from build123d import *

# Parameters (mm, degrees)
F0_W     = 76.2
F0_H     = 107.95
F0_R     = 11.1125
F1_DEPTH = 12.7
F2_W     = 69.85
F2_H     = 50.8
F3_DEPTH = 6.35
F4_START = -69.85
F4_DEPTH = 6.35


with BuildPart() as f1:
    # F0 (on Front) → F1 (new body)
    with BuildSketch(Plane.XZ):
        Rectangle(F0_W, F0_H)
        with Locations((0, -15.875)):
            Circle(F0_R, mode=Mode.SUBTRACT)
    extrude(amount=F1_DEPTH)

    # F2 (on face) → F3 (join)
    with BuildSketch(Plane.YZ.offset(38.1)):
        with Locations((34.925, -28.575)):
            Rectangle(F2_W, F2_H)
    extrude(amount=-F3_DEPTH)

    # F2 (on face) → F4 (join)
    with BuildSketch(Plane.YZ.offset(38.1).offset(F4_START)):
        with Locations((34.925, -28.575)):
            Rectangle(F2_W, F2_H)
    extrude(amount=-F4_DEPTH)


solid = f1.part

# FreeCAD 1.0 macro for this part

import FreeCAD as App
import Part
import Sketcher

V = App.Vector
Q = App.Units.Quantity

doc = App.newDocument("Part")
body = doc.addObject("PartDesign::Body", "Body")

# Sketch on XZ plane
sketch1 = body.newObject("Sketcher::SketchObject", "Sketch")
sketch1.AttachmentSupport = (doc.getObject("XZ_Plane"), [""])
sketch1.MapMode = "FlatFace"
sketch1.addGeometry(Part.LineSegment(V(-38.1, 53.975, 0), V(-38.1, -53.975, 0)), False)
sketch1.addGeometry(Part.LineSegment(V(-38.1, -53.975, 0), V(38.1, -53.975, 0)), False)
sketch1.addGeometry(Part.LineSegment(V(38.1, -53.975, 0), V(38.1, 53.975, 0)), False)
sketch1.addGeometry(Part.LineSegment(V(38.1, 53.975, 0), V(-38.1, 53.975, 0)), False)
sketch1.addGeometry(Part.Circle(V(0, -15.875, 0), V(0, 0, 1), 11.1125), False)
sketch1.addConstraint(Sketcher.Constraint("Coincident", 0, 2, 1, 1))
sketch1.addConstraint(Sketcher.Constraint("Coincident", 1, 2, 2, 1))
sketch1.addConstraint(Sketcher.Constraint("Coincident", 2, 2, 3, 1))
sketch1.addConstraint(Sketcher.Constraint("Coincident", 3, 2, 0, 1))
sketch1.addConstraint(Sketcher.Constraint("Vertical", 0))
sketch1.addConstraint(Sketcher.Constraint("Horizontal", 1))
sketch1.addConstraint(Sketcher.Constraint("Vertical", 2))
sketch1.addConstraint(Sketcher.Constraint("Horizontal", 3))
sketch1.addConstraint(Sketcher.Constraint("Symmetric", 0, 2, 2, 2, -1, 1))
sketch1.addConstraint(Sketcher.Constraint("PointOnObject", 4, 3, -2))
sketch1.addConstraint(Sketcher.Constraint("DistanceX", 1, 1, 1, 2, Q("3 in")))
sketch1.addConstraint(Sketcher.Constraint("Diameter", 4, Q("0.875 in")))
sketch1.addConstraint(Sketcher.Constraint("DistanceY", 0, 2, 0, 1, Q("4.25 in")))
sketch1.addConstraint(Sketcher.Constraint("DistanceY", 0, 2, 4, 3, Q("1.5 in")))
pad1 = body.newObject("PartDesign::Pad", "Pad")
pad1.Profile = sketch1
pad1.Length = Q("0.5 in")

# Sketch on YZ plane
sketch2 = body.newObject("Sketcher::SketchObject", "Sketch001")
sketch2.AttachmentSupport = (doc.getObject("YZ_Plane"), [""])
sketch2.MapMode = "FlatFace"
sketch2.AttachmentOffset = App.Placement(V(0, 0, 1.5 * 25.4), App.Rotation())
sketch2.addGeometry(Part.LineSegment(V(0, -3.175, 0), V(0, -53.975, 0)), False)
sketch2.addGeometry(Part.LineSegment(V(0, -53.975, 0), V(69.85, -53.975, 0)), False)
sketch2.addGeometry(Part.LineSegment(V(69.85, -53.975, 0), V(69.85, -3.175, 0)), False)
sketch2.addGeometry(Part.LineSegment(V(69.85, -3.175, 0), V(0, -3.175, 0)), False)
sketch2.addConstraint(Sketcher.Constraint("Coincident", 0, 2, 1, 1))
sketch2.addConstraint(Sketcher.Constraint("Coincident", 1, 2, 2, 1))
sketch2.addConstraint(Sketcher.Constraint("Coincident", 2, 2, 3, 1))
sketch2.addConstraint(Sketcher.Constraint("Coincident", 3, 2, 0, 1))
sketch2.addConstraint(Sketcher.Constraint("Vertical", 0))
sketch2.addConstraint(Sketcher.Constraint("Horizontal", 1))
sketch2.addConstraint(Sketcher.Constraint("Vertical", 2))
sketch2.addConstraint(Sketcher.Constraint("Horizontal", 3))
sketch2.addConstraint(Sketcher.Constraint("PointOnObject", 0, 2, -2))
sketch2.addConstraint(Sketcher.Constraint("DistanceY", 0, 2, 0, 1, Q("2 in")))
sketch2.addConstraint(Sketcher.Constraint("DistanceX", 1, 1, 1, 2, Q("2.75 in")))
sketch2.addConstraint(Sketcher.Constraint("DistanceY", 0, 2, -1, 1, Q("2.125 in")))
pad2 = body.newObject("PartDesign::Pad", "Pad001")
pad2.Profile = sketch2
pad2.Length = Q("0.25 in")
pad2.Reversed = True

# Sketch on YZ plane
sketch3 = body.newObject("Sketcher::SketchObject", "Sketch002")
sketch3.AttachmentSupport = (doc.getObject("YZ_Plane"), [""])
sketch3.MapMode = "FlatFace"
sketch3.AttachmentOffset = App.Placement(V(0, 0, -1.25 * 25.4), App.Rotation())
sketch3.addGeometry(Part.LineSegment(V(0, -3.175, 0), V(0, -53.975, 0)), False)
sketch3.addGeometry(Part.LineSegment(V(0, -53.975, 0), V(69.85, -53.975, 0)), False)
sketch3.addGeometry(Part.LineSegment(V(69.85, -53.975, 0), V(69.85, -3.175, 0)), False)
sketch3.addGeometry(Part.LineSegment(V(69.85, -3.175, 0), V(0, -3.175, 0)), False)
sketch3.addConstraint(Sketcher.Constraint("Coincident", 0, 2, 1, 1))
sketch3.addConstraint(Sketcher.Constraint("Coincident", 1, 2, 2, 1))
sketch3.addConstraint(Sketcher.Constraint("Coincident", 2, 2, 3, 1))
sketch3.addConstraint(Sketcher.Constraint("Coincident", 3, 2, 0, 1))
sketch3.addConstraint(Sketcher.Constraint("Vertical", 0))
sketch3.addConstraint(Sketcher.Constraint("Horizontal", 1))
sketch3.addConstraint(Sketcher.Constraint("Vertical", 2))
sketch3.addConstraint(Sketcher.Constraint("Horizontal", 3))
sketch3.addConstraint(Sketcher.Constraint("PointOnObject", 0, 2, -2))
sketch3.addConstraint(Sketcher.Constraint("DistanceY", 0, 2, 0, 1, Q("2 in")))
sketch3.addConstraint(Sketcher.Constraint("DistanceX", 1, 1, 1, 2, Q("2.75 in")))
sketch3.addConstraint(Sketcher.Constraint("DistanceY", 0, 2, -1, 1, Q("2.125 in")))
pad3 = body.newObject("PartDesign::Pad", "Pad002")
pad3.Profile = sketch3
pad3.Length = Q("0.25 in")
pad3.Reversed = True

doc.recompute()
